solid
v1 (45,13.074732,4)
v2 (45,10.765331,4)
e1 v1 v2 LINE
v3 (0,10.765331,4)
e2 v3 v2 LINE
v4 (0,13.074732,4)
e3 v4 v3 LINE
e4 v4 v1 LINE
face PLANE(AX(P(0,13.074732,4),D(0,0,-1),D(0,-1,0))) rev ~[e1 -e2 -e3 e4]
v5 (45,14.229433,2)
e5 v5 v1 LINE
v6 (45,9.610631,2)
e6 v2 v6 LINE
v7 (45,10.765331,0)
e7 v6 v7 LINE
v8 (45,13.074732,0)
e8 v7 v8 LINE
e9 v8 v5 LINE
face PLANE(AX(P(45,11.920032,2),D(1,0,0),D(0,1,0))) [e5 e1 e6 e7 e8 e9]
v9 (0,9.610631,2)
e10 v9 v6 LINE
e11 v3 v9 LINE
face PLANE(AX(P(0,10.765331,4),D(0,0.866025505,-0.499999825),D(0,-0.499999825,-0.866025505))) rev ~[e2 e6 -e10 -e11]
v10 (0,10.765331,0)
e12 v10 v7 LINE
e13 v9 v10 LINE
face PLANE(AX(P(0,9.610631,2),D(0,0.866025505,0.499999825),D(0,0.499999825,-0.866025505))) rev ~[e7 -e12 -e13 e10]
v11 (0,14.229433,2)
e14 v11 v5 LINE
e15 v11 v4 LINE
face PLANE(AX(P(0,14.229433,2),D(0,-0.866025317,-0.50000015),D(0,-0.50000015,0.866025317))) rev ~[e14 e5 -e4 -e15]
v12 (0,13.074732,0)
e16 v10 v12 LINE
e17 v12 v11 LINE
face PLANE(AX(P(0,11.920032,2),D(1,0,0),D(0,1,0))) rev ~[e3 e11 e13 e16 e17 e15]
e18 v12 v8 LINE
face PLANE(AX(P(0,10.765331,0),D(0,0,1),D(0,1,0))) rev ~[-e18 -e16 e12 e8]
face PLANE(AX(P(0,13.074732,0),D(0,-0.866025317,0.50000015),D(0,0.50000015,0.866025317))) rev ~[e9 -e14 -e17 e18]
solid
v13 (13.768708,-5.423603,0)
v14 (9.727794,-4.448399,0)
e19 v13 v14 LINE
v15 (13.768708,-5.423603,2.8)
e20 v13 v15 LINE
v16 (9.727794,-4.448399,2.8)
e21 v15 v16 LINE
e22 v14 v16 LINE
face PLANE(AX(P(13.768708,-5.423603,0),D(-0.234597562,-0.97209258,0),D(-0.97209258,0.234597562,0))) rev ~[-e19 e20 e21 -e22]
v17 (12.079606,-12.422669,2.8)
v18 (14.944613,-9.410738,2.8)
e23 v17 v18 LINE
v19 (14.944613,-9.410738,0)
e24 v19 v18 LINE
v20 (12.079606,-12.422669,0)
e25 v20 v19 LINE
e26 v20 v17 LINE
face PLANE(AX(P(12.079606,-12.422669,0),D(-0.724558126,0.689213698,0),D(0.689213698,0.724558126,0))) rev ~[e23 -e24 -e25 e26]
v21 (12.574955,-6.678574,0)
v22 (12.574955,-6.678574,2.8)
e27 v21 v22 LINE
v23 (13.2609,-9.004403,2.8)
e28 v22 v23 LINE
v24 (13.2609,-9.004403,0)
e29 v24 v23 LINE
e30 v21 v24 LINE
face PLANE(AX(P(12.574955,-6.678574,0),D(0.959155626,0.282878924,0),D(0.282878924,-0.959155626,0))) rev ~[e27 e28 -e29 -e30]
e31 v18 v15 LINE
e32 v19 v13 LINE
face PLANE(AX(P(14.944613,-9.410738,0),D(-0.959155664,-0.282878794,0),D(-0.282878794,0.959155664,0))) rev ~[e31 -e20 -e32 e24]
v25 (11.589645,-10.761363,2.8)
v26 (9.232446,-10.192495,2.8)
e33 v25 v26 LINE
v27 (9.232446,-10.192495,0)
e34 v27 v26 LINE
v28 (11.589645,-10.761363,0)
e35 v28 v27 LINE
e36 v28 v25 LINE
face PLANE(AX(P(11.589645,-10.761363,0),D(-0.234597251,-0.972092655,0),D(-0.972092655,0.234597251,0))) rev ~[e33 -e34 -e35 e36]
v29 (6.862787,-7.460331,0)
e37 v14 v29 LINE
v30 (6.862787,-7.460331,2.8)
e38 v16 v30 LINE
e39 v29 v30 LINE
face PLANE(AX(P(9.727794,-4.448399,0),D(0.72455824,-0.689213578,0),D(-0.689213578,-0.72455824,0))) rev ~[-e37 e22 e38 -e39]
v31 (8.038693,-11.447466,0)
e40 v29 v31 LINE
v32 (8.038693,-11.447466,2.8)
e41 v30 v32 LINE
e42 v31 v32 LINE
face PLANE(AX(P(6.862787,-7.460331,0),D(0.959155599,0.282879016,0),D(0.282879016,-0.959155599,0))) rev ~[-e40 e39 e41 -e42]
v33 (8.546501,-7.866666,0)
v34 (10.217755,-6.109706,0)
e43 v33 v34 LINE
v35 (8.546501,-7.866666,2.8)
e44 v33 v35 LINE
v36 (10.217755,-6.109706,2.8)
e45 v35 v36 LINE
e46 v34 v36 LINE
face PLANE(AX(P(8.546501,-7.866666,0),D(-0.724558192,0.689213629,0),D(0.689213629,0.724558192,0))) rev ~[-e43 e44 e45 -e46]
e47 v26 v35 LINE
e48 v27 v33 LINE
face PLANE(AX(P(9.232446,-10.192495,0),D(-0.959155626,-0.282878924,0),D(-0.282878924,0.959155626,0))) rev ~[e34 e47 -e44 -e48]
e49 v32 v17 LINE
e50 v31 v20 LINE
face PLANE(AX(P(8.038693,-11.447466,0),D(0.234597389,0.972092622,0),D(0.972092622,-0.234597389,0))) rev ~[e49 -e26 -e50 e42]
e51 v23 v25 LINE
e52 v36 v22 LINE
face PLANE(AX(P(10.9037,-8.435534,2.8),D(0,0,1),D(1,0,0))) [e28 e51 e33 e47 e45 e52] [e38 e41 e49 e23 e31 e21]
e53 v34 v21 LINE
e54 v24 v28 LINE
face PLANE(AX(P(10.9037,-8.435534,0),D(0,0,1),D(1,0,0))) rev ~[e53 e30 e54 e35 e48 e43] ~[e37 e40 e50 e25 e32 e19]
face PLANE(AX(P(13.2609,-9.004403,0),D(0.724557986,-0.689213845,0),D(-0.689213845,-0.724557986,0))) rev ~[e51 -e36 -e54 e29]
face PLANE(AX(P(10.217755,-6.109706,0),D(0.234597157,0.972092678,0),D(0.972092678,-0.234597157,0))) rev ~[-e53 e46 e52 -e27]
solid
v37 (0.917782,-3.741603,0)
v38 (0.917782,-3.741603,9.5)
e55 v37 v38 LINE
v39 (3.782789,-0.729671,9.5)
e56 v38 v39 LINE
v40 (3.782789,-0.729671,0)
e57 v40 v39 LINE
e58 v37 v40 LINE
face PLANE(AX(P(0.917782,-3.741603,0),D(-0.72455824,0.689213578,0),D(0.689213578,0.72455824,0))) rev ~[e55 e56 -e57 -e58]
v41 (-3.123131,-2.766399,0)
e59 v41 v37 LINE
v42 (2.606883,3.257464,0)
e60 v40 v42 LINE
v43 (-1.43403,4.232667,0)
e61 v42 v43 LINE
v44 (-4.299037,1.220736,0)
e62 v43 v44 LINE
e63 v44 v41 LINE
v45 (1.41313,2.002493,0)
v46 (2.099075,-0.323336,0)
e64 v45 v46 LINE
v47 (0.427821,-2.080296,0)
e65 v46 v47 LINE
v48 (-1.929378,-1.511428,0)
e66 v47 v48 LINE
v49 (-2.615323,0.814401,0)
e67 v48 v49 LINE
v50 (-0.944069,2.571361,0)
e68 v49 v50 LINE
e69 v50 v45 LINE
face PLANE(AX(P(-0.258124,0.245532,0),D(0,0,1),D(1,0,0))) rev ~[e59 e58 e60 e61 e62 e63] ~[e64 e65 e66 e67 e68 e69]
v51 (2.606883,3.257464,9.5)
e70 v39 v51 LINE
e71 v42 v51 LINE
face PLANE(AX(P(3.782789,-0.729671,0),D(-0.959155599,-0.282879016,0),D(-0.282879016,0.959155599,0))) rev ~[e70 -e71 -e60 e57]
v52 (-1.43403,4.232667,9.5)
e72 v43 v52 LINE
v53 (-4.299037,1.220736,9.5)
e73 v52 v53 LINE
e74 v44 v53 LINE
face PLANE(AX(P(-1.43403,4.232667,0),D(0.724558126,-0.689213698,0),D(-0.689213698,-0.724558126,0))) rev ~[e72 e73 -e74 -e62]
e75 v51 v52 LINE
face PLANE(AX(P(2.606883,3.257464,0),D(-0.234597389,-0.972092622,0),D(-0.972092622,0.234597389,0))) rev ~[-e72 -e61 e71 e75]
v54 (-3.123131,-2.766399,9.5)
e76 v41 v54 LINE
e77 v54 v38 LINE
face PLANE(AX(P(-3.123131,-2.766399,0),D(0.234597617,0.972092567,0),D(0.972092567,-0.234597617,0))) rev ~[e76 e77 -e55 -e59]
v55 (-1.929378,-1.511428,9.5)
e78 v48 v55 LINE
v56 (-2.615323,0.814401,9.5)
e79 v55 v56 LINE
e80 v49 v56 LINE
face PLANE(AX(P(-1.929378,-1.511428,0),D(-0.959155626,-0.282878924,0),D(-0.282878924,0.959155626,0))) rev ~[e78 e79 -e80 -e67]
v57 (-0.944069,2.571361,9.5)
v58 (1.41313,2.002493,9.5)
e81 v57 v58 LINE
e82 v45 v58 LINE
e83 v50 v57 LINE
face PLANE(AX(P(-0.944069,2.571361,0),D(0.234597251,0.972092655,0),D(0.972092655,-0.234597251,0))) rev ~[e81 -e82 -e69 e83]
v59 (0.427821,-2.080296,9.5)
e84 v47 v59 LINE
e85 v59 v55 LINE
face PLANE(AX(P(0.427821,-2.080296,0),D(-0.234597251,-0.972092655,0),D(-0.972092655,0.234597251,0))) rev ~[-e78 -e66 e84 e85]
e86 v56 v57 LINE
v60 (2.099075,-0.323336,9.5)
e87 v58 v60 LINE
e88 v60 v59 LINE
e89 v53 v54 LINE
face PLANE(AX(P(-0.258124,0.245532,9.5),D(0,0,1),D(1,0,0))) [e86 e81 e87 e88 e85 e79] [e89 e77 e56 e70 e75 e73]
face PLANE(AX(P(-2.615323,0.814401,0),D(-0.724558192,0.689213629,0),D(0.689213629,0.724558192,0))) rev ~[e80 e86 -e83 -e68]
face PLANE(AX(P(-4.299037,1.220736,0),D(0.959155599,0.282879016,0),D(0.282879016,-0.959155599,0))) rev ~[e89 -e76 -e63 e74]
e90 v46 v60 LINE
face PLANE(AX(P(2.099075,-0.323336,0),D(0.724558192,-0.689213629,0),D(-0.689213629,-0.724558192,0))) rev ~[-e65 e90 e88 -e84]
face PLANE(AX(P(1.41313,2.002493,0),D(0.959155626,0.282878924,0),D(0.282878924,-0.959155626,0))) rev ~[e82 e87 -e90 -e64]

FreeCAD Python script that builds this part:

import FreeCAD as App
import Part
import Sketcher
from FreeCAD import Vector
Q = App.Units.Quantity

doc = App.newDocument("Part")
body = doc.addObject("PartDesign::Body", "Body")

# Sketch on YZ plane
sketch1 = doc.addObject("Sketcher::SketchObject", "Sketch")
body.addObject(sketch1)
sketch1.AttachmentSupport = (doc.YZ_Plane, [""])
sketch1.MapMode = "FlatFace"
sketch1.addGeometry([
    Part.LineSegment(Vector(13.074732, 0, 0), Vector(14.229433, 2, 0)),  # 0
    Part.LineSegment(Vector(14.229433, 2, 0), Vector(13.074732, 4, 0)),  # 1
    Part.LineSegment(Vector(13.074732, 4, 0), Vector(10.765331, 4, 0)),  # 2
    Part.LineSegment(Vector(10.765331, 4, 0), Vector(9.610631, 2, 0)),  # 3
    Part.LineSegment(Vector(9.610631, 2, 0), Vector(10.765331, 0, 0)),  # 4
    Part.LineSegment(Vector(10.765331, 0, 0), Vector(13.074732, 0, 0)),  # 5
], False)
sketch1.addConstraint([
    Sketcher.Constraint("Coincident", 0, 2, 1, 1),
    Sketcher.Constraint("Coincident", 1, 2, 2, 1),
    Sketcher.Constraint("Coincident", 2, 2, 3, 1),
    Sketcher.Constraint("Coincident", 3, 2, 4, 1),
    Sketcher.Constraint("Coincident", 4, 2, 5, 1),
    Sketcher.Constraint("Coincident", 5, 2, 0, 1),
    Sketcher.Constraint("Horizontal", 2),
    Sketcher.Constraint("Horizontal", 5),
    Sketcher.Constraint("PointOnObject", 4, 2, -1),
    Sketcher.Constraint("Parallel", 0, 3),
    Sketcher.Constraint("Parallel", 1, 4),
    Sketcher.Constraint("Horizontal", 0, 2, 3, 2),
    Sketcher.Constraint("Vertical", 2, 2, 4, 2),
    Sketcher.Constraint("Vertical", 1, 2, 5, 2),
    Sketcher.Constraint("Angle", 0, Q("59.99999 deg")),
    Sketcher.Constraint("DistanceY", -1, 1, 0, 2, Q("2 mm")),
    Sketcher.Constraint("DistanceX", 2, 2, 2, 1, Q("2.309401 mm")),
    Sketcher.Constraint("DistanceX", -1, 1, 1, 2, Q("13.074732 mm")),
])
pad1 = doc.addObject("PartDesign::Pad", "Pad")
body.addObject(pad1)
pad1.Profile = sketch1
pad1.Length = 45
body2 = doc.addObject("PartDesign::Body", "Body001")

# Sketch on XY plane
sketch2 = doc.addObject("Sketcher::SketchObject", "Sketch001")
body2.addObject(sketch2)
sketch2.AttachmentSupport = (doc.getObject("XY_Plane001"), [""])
sketch2.MapMode = "FlatFace"
sketch2.addGeometry([
    Part.LineSegment(Vector(12.079606, -12.422669, 0), Vector(14.944613, -9.410738, 0)),  # 0
    Part.LineSegment(Vector(14.944613, -9.410738, 0), Vector(13.768708, -5.423603, 0)),  # 1
    Part.LineSegment(Vector(13.768708, -5.423603, 0), Vector(9.727794, -4.448399, 0)),  # 2
    Part.LineSegment(Vector(9.727794, -4.448399, 0), Vector(6.862787, -7.460331, 0)),  # 3
    Part.LineSegment(Vector(6.862787, -7.460331, 0), Vector(8.038693, -11.447466, 0)),  # 4
    Part.LineSegment(Vector(8.038693, -11.447466, 0), Vector(12.079606, -12.422669, 0)),  # 5
    Part.LineSegment(Vector(10.217755, -6.109706, 0), Vector(12.574955, -6.678574, 0)),  # 6
    Part.LineSegment(Vector(12.574955, -6.678574, 0), Vector(13.2609, -9.004403, 0)),  # 7
    Part.LineSegment(Vector(13.2609, -9.004403, 0), Vector(11.589645, -10.761363, 0)),  # 8
    Part.LineSegment(Vector(11.589645, -10.761363, 0), Vector(9.232446, -10.192495, 0)),  # 9
    Part.LineSegment(Vector(9.232446, -10.192495, 0), Vector(8.546501, -7.866666, 0)),  # 10
    Part.LineSegment(Vector(8.546501, -7.866666, 0), Vector(10.217755, -6.109706, 0)),  # 11
], False)
sketch2.addConstraint([
    Sketcher.Constraint("Coincident", 0, 2, 1, 1),
    Sketcher.Constraint("Coincident", 1, 2, 2, 1),
    Sketcher.Constraint("Coincident", 2, 2, 3, 1),
    Sketcher.Constraint("Coincident", 3, 2, 4, 1),
    Sketcher.Constraint("Coincident", 4, 2, 5, 1),
    Sketcher.Constraint("Coincident", 5, 2, 0, 1),
    Sketcher.Constraint("Coincident", 6, 2, 7, 1),
    Sketcher.Constraint("Coincident", 7, 2, 8, 1),
    Sketcher.Constraint("Coincident", 8, 2, 9, 1),
    Sketcher.Constraint("Coincident", 9, 2, 10, 1),
    Sketcher.Constraint("Coincident", 10, 2, 11, 1),
    Sketcher.Constraint("Coincident", 11, 2, 6, 1),
    Sketcher.Constraint("Parallel", 0, 3),
    Sketcher.Constraint("Parallel", 1, 4),
    Sketcher.Constraint("Parallel", 2, 5),
    Sketcher.Constraint("Parallel", 5, 6),
    Sketcher.Constraint("Parallel", 4, 7),
    Sketcher.Constraint("Parallel", 3, 8),
    Sketcher.Constraint("Parallel", 6, 9),
    Sketcher.Constraint("Parallel", 7, 10),
    Sketcher.Constraint("Parallel", 8, 11),
    Sketcher.Constraint("Equal", 0, 1),
    Sketcher.Constraint("Equal", 1, 2),
    Sketcher.Constraint("Equal", 2, 3),
    Sketcher.Constraint("Equal", 6, 7),
    Sketcher.Constraint("Equal", 7, 8),
    Sketcher.Constraint("Equal", 8, 9),
    Sketcher.Constraint("DistanceY", 2, 2, -1, 1, Q("4.448399 mm")),
    Sketcher.Constraint("DistanceX", -1, 1, 7, 2, Q("13.2609 mm")),
    Sketcher.Constraint("DistanceX", -1, 1, 10, 2, Q("8.546501 mm")),
    Sketcher.Constraint("DistanceX", 4, 2, 2, 2, Q("1.689101 mm")),
    Sketcher.Constraint("DistanceY", 7, 2, 1, 2, Q("3.5808 mm")),
    Sketcher.Constraint("DistanceX", 9, 2, 8, 2, Q("2.357199 mm")),
    Sketcher.Constraint("DistanceY", 4, 2, 10, 2, Q("3.5808 mm")),
    Sketcher.Constraint("Distance", 0, Q("4.156921 mm")),
    Sketcher.Constraint("DistanceX", 6, 2, 0, 2, Q("2.369658 mm")),
])
pad2 = doc.addObject("PartDesign::Pad", "Pad001")
body2.addObject(pad2)
pad2.Profile = sketch2
pad2.Length = 2.8
body3 = doc.addObject("PartDesign::Body", "Body002")

# Sketch on XY plane
sketch3 = doc.addObject("Sketcher::SketchObject", "Sketch002")
body3.addObject(sketch3)
sketch3.AttachmentSupport = (doc.getObject("XY_Plane002"), [""])
sketch3.MapMode = "FlatFace"
sketch3.addGeometry([
    Part.LineSegment(Vector(0.917782, -3.741603, 0), Vector(3.782789, -0.729671, 0)),  # 0
    Part.LineSegment(Vector(3.782789, -0.729671, 0), Vector(2.606883, 3.257464, 0)),  # 1
    Part.LineSegment(Vector(2.606883, 3.257464, 0), Vector(-1.43403, 4.232667, 0)),  # 2
    Part.LineSegment(Vector(-1.43403, 4.232667, 0), Vector(-4.299037, 1.220736, 0)),  # 3
    Part.LineSegment(Vector(-4.299037, 1.220736, 0), Vector(-3.123131, -2.766399, 0)),  # 4
    Part.LineSegment(Vector(-3.123131, -2.766399, 0), Vector(0.917782, -3.741603, 0)),  # 5
    Part.LineSegment(Vector(-0.944069, 2.571361, 0), Vector(1.41313, 2.002493, 0)),  # 6
    Part.LineSegment(Vector(1.41313, 2.002493, 0), Vector(2.099075, -0.323336, 0)),  # 7
    Part.LineSegment(Vector(2.099075, -0.323336, 0), Vector(0.427821, -2.080296, 0)),  # 8
    Part.LineSegment(Vector(0.427821, -2.080296, 0), Vector(-1.929378, -1.511428, 0)),  # 9
    Part.LineSegment(Vector(-1.929378, -1.511428, 0), Vector(-2.615323, 0.814401, 0)),  # 10
    Part.LineSegment(Vector(-2.615323, 0.814401, 0), Vector(-0.944069, 2.571361, 0)),  # 11
], False)
sketch3.addConstraint([
    Sketcher.Constraint("Coincident", 0, 2, 1, 1),
    Sketcher.Constraint("Coincident", 1, 2, 2, 1),
    Sketcher.Constraint("Coincident", 2, 2, 3, 1),
    Sketcher.Constraint("Coincident", 3, 2, 4, 1),
    Sketcher.Constraint("Coincident", 4, 2, 5, 1),
    Sketcher.Constraint("Coincident", 5, 2, 0, 1),
    Sketcher.Constraint("Coincident", 6, 2, 7, 1),
    Sketcher.Constraint("Coincident", 7, 2, 8, 1),
    Sketcher.Constraint("Coincident", 8, 2, 9, 1),
    Sketcher.Constraint("Coincident", 9, 2, 10, 1),
    Sketcher.Constraint("Coincident", 10, 2, 11, 1),
    Sketcher.Constraint("Coincident", 11, 2, 6, 1),
    Sketcher.Constraint("Parallel", 0, 3),
    Sketcher.Constraint("Parallel", 1, 4),
    Sketcher.Constraint("Parallel", 2, 5),
    Sketcher.Constraint("Parallel", 5, 6),
    Sketcher.Constraint("Parallel", 4, 7),
    Sketcher.Constraint("Parallel", 3, 8),
    Sketcher.Constraint("Parallel", 6, 9),
    Sketcher.Constraint("Parallel", 7, 10),
    Sketcher.Constraint("Parallel", 8, 11),
    Sketcher.Constraint("Equal", 0, 1),
    Sketcher.Constraint("Equal", 1, 2),
    Sketcher.Constraint("Equal", 2, 3),
    Sketcher.Constraint("Equal", 6, 7),
    Sketcher.Constraint("Equal", 7, 8),
    Sketcher.Constraint("Equal", 8, 9),
    Sketcher.Constraint("DistanceY", 4, 2, -1, 1, Q("2.766399 mm")),
    Sketcher.Constraint("DistanceY", -1, 1, 10, 2, Q("0.814401 mm")),
    Sketcher.Constraint("DistanceX", 4, 2, 2, 2, Q("1.689101 mm")),
    Sketcher.Constraint("DistanceY", 7, 2, 1, 2, Q("3.5808 mm")),
    Sketcher.Constraint("DistanceX", 9, 2, 8, 2, Q("2.357199 mm")),
    Sketcher.Constraint("Distance", 0, Q("4.156922 mm")),
    Sketcher.Constraint("Distance", 6, Q("2.424871 mm")),
    Sketcher.Constraint("DistanceX", -1, 1, 0, 2, Q("3.782789 mm")),
    Sketcher.Constraint("DistanceX", -1, 1, 6, 2, Q("1.41313 mm")),
])
pad3 = doc.addObject("PartDesign::Pad", "Pad002")
body3.addObject(pad3)
pad3.Profile = sketch3
pad3.Length = 9.5

doc.recompute()
